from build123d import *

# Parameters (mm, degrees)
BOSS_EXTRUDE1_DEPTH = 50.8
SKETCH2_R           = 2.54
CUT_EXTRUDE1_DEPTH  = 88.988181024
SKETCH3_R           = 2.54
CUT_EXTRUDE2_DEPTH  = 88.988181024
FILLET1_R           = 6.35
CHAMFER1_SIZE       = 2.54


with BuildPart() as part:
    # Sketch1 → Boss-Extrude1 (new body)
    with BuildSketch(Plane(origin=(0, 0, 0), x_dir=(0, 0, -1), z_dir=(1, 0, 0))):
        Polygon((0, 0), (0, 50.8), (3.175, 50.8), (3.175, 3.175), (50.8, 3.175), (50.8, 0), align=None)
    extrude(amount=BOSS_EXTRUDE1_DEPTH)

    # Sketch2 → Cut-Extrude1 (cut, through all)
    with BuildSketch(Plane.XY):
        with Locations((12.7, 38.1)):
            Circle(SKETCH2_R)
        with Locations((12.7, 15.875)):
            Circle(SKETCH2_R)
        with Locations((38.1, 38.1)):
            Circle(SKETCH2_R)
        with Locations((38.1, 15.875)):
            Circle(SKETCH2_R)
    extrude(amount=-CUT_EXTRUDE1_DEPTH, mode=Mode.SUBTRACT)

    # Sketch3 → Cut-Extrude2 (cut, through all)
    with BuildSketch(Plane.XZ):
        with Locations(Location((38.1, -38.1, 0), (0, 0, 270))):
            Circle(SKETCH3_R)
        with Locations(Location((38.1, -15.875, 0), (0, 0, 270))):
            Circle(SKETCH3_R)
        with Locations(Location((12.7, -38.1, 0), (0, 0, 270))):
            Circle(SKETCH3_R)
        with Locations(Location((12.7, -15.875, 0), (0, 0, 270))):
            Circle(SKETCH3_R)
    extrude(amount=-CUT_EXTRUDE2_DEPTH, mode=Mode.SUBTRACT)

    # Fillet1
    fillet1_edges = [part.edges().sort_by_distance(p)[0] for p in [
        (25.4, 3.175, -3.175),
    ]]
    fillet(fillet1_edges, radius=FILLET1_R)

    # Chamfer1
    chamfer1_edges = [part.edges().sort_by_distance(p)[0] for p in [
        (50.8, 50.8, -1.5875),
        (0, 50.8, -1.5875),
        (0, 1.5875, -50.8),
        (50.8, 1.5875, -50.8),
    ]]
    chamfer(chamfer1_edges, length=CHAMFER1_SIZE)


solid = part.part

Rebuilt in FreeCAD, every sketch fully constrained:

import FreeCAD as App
import Part
import Sketcher
Q = App.Units.Quantity


def edges_at(feature, points):
    """Names of the edges that pass closest to the given points."""
    edges = feature.Shape.Edges
    near = lambda p: min(range(len(edges)), key=lambda i: edges[i].distToShape(Part.Vertex(*p))[0])
    return sorted({f"Edge{near(p) + 1}" for p in points})


def add_polygon(sketch, points):
    """Adds a closed chain of lines whose ends are joined by coincident constraints."""
    first, n = sketch.GeometryCount, len(points)
    for a, b in zip(points, points[1:] + points[:1]):
        sketch.addGeometry(Part.LineSegment(App.Vector(*a, 0), App.Vector(*b, 0)), False)
    for i in range(n):
        sketch.addConstraint(Sketcher.Constraint("Coincident", first + i, 2, first + (i + 1) % n, 1))

doc = App.newDocument("Part")
body = doc.addObject("PartDesign::Body", "Body")

# Sketch on YZ plane
sketch1 = doc.addObject("Sketcher::SketchObject", "Sketch")
body.addObject(sketch1)
sketch1.AttachmentSupport = (doc.YZ_Plane, [""])
sketch1.MapMode = "FlatFace"
add_polygon(sketch1, [(50.8, 0), (0, 0), (0, -50.8), (3.2, -50.8), (3.2, -3.2), (50.8, -3.2)])  # lines 0-5
sketch1.addConstraint(Sketcher.Constraint("Horizontal", 0))
sketch1.addConstraint(Sketcher.Constraint("Vertical", 1))
sketch1.addConstraint(Sketcher.Constraint("Horizontal", 2))
sketch1.addConstraint(Sketcher.Constraint("Vertical", 3))
sketch1.addConstraint(Sketcher.Constraint("Horizontal", 4))
sketch1.addConstraint(Sketcher.Constraint("Vertical", 5))
sketch1.addConstraint(Sketcher.Constraint("Coincident", 0, 2, -1, 1))
sketch1.addConstraint(Sketcher.Constraint("Equal", 0, 1))
sketch1.addConstraint(Sketcher.Constraint("Equal", 4, 3))
sketch1.addConstraint(Sketcher.Constraint("DistanceX", 0, 2, 0, 1, Q("2 in")))
sketch1.addConstraint(Sketcher.Constraint("DistanceX", 2, 1, 2, 2, Q("0.125 in")))
pad1 = doc.addObject("PartDesign::Pad", "Pad")
body.addObject(pad1)
pad1.Profile = sketch1
pad1.Length = Q("2 in")

# Sketch on XY plane
sketch2 = doc.addObject("Sketcher::SketchObject", "Sketch001")
body.addObject(sketch2)
sketch2.AttachmentSupport = (doc.XY_Plane, [""])
sketch2.MapMode = "FlatFace"
sketch2.addGeometry(Part.Circle(App.Vector(12.7, 38.1, 0), App.Vector(0, 0, 1), 2.5), False)
sketch2.addGeometry(Part.Circle(App.Vector(12.7, 15.9, 0), App.Vector(0, 0, 1), 2.5), False)
sketch2.addGeometry(Part.Circle(App.Vector(38.1, 38.1, 0), App.Vector(0, 0, 1), 2.5), False)
sketch2.addGeometry(Part.Circle(App.Vector(38.1, 15.9, 0), App.Vector(0, 0, 1), 2.5), False)
sketch2.addConstraint(Sketcher.Constraint("Equal", 0, 1))
sketch2.addConstraint(Sketcher.Constraint("Equal", 1, 2))
sketch2.addConstraint(Sketcher.Constraint("Equal", 2, 3))
sketch2.addConstraint(Sketcher.Constraint("Horizontal", 0, 3, 2, 3))
sketch2.addConstraint(Sketcher.Constraint("Horizontal", 1, 3, 3, 3))
sketch2.addConstraint(Sketcher.Constraint("Vertical", 0, 3, 1, 3))
sketch2.addConstraint(Sketcher.Constraint("Vertical", 2, 3, 3, 3))
sketch2.addConstraint(Sketcher.Constraint("Diameter", 0, Q("0.2 in")))
sketch2.addConstraint(Sketcher.Constraint("DistanceX", 0, 3, 2, 3, Q("1 in")))
sketch2.addConstraint(Sketcher.Constraint("DistanceX", -1, 1, 0, 3, Q("0.5 in")))
sketch2.addConstraint(Sketcher.Constraint("DistanceY", -1, 1, 0, 3, Q("1.5 in")))
sketch2.addConstraint(Sketcher.Constraint("DistanceY", -1, 1, 1, 3, Q("0.625 in")))
pocket1 = doc.addObject("PartDesign::Pocket", "Pocket")
body.addObject(pocket1)
pocket1.Profile = sketch2
pocket1.Type = "ThroughAll"

# Sketch on XZ plane
sketch3 = doc.addObject("Sketcher::SketchObject", "Sketch002")
body.addObject(sketch3)
sketch3.AttachmentSupport = (doc.XZ_Plane, [""])
sketch3.MapMode = "FlatFace"
sketch3.addGeometry(Part.Circle(App.Vector(38.1, -38.1, 0), App.Vector(0, 0, 1), 2.5), False)
sketch3.addGeometry(Part.Circle(App.Vector(38.1, -15.9, 0), App.Vector(0, 0, 1), 2.5), False)
sketch3.addGeometry(Part.Circle(App.Vector(12.7, -38.1, 0), App.Vector(0, 0, 1), 2.5), False)
sketch3.addGeometry(Part.Circle(App.Vector(12.7, -15.9, 0), App.Vector(0, 0, 1), 2.5), False)
sketch3.addConstraint(Sketcher.Constraint("Equal", 0, 1))
sketch3.addConstraint(Sketcher.Constraint("Equal", 1, 2))
sketch3.addConstraint(Sketcher.Constraint("Equal", 2, 3))
sketch3.addConstraint(Sketcher.Constraint("Horizontal", 0, 3, 2, 3))
sketch3.addConstraint(Sketcher.Constraint("Horizontal", 1, 3, 3, 3))
sketch3.addConstraint(Sketcher.Constraint("Vertical", 0, 3, 1, 3))
sketch3.addConstraint(Sketcher.Constraint("Vertical", 2, 3, 3, 3))
sketch3.addConstraint(Sketcher.Constraint("Diameter", 0, Q("0.2 in")))
sketch3.addConstraint(Sketcher.Constraint("DistanceX", 2, 3, 0, 3, Q("1 in")))
sketch3.addConstraint(Sketcher.Constraint("DistanceX", -1, 1, 0, 3, Q("1.5 in")))
sketch3.addConstraint(Sketcher.Constraint("DistanceY", 0, 3, -1, 1, Q("1.5 in")))
sketch3.addConstraint(Sketcher.Constraint("DistanceY", 1, 3, -1, 1, Q("0.625 in")))
pocket2 = doc.addObject("PartDesign::Pocket", "Pocket001")
body.addObject(pocket2)
pocket2.Profile = sketch3
pocket2.Type = "ThroughAll"
doc.recompute()

fillet = doc.addObject("PartDesign::Fillet", "Fillet")
body.addObject(fillet)
fillet.Base = (pocket2, edges_at(pocket2, [(25.4, 3.175, -3.175)]))
fillet.Radius = Q("0.25 in")
doc.recompute()

chamfer = doc.addObject("PartDesign::Chamfer", "Chamfer")
body.addObject(chamfer)
chamfer.Base = (fillet, edges_at(fillet, [
    (50.8, 50.8, -1.587),
    (0, 50.8, -1.587),
    (0, 1.587, -50.8),
    (50.8, 1.587, -50.8),
]))
chamfer.Size = Q("0.1 in")

doc.recompute()
